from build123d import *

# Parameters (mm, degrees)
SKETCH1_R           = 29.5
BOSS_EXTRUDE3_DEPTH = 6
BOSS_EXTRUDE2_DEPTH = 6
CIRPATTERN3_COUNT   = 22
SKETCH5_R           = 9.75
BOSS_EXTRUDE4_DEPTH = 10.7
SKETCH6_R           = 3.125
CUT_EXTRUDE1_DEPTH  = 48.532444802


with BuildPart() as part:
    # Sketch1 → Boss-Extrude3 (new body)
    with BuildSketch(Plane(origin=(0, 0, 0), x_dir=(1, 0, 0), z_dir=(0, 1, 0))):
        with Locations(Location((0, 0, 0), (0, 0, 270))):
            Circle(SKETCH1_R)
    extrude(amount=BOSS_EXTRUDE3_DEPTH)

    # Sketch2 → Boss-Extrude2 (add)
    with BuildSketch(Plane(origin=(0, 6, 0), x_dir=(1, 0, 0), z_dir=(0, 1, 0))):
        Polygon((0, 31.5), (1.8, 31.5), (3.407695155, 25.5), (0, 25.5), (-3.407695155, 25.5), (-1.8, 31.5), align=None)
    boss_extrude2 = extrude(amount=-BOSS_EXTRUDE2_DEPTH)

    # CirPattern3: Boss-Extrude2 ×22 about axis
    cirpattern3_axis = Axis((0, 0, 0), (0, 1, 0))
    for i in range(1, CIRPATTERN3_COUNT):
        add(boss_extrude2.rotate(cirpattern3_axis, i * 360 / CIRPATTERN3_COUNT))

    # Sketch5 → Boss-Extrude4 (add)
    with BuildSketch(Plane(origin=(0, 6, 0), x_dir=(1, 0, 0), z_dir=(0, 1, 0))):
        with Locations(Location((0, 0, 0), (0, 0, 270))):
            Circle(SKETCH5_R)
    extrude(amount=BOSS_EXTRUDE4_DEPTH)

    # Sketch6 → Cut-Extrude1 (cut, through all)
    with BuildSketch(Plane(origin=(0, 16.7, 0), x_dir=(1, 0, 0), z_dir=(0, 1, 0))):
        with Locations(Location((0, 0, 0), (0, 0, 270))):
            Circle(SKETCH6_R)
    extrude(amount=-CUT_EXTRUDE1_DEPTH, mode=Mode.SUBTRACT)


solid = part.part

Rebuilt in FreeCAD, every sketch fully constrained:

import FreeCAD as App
import Part
import Sketcher
from FreeCAD import Vector
Q = App.Units.Quantity


def add_polygon(sketch, points):
    """Adds a closed chain of lines whose ends are joined by coincident constraints."""
    first, n = sketch.GeometryCount, len(points)
    for a, b in zip(points, points[1:] + points[:1]):
        sketch.addGeometry(Part.LineSegment(App.Vector(*a, 0), App.Vector(*b, 0)), False)
    for i in range(n):
        sketch.addConstraint(Sketcher.Constraint("Coincident", first + i, 2, first + (i + 1) % n, 1))

doc = App.newDocument("Part")
body = doc.addObject("PartDesign::Body", "Body")

# Sketch on XZ plane
sketch1 = doc.addObject("Sketcher::SketchObject", "Sketch")
body.addObject(sketch1)
sketch1.AttachmentSupport = (doc.XZ_Plane, [""])
sketch1.MapMode = "FlatFace"
sketch1.addGeometry(Part.Circle(Vector(0, 0, 0), Vector(0, 0, 1), 30), False)
sketch1.addConstraint([
    Sketcher.Constraint("Coincident", 0, 3, -1, 1),
    Sketcher.Constraint("Diameter", 0, 59.0),
])
pad1 = doc.addObject("PartDesign::Pad", "Pad")
body.addObject(pad1)
pad1.Profile = sketch1
pad1.Length = 6
pad1.Reversed = True

# Sketch on XZ plane
sketch2 = doc.addObject("Sketcher::SketchObject", "Sketch001")
body.addObject(sketch2)
sketch2.AttachmentSupport = (doc.XZ_Plane, [""])
sketch2.MapMode = "FlatFace"
sketch2.AttachmentOffset = App.Placement(Vector(0, 0, -6), App.Rotation())
add_polygon(sketch2, [(1.8, -31.5), (-1.8, -31.5), (-3.4, -25.5), (3.4, -25.5)])  # lines 0-3
sketch2.addConstraint([
    Sketcher.Constraint("Horizontal", 0),
    Sketcher.Constraint("Horizontal", 2),
    Sketcher.Constraint("Equal", 1, 3),
    Sketcher.Constraint("Angle", 1, Q("105 deg")),
    Sketcher.Constraint("DistanceX", 0, 2, 0, 1, 3.6),
    Sketcher.Constraint("DistanceY", 0, 2, 1, 2, 6.0),
    Sketcher.Constraint("DistanceX", 0, 2, -1, 1, 1.8),
    Sketcher.Constraint("DistanceY", 0, 2, -1, 1, 31.5),
])
pad2 = doc.addObject("PartDesign::Pad", "Pad001")
body.addObject(pad2)
pad2.Profile = sketch2
pad2.Length = 6
doc.recompute()

polarpattern = doc.addObject("PartDesign::PolarPattern", "PolarPattern")
body.addObject(polarpattern)
polarpattern.Originals = [pad2]
polarpattern.Axis = (doc.Y_Axis, [""])
polarpattern.Angle = 360
polarpattern.Occurrences = 22
body.Tip = polarpattern

# Sketch on XZ plane
sketch3 = doc.addObject("Sketcher::SketchObject", "Sketch002")
body.addObject(sketch3)
sketch3.AttachmentSupport = (doc.XZ_Plane, [""])
sketch3.MapMode = "FlatFace"
sketch3.AttachmentOffset = App.Placement(Vector(0, 0, -6), App.Rotation())
sketch3.addGeometry(Part.Circle(Vector(0, 0, 0), Vector(0, 0, 1), 10), False)
sketch3.addConstraint([
    Sketcher.Constraint("Coincident", 0, 3, -1, 1),
    Sketcher.Constraint("Diameter", 0, 19.5),
])
pad3 = doc.addObject("PartDesign::Pad", "Pad002")
body.addObject(pad3)
pad3.Profile = sketch3
pad3.Length = 10.7
pad3.Reversed = True

# Sketch on XZ plane
sketch4 = doc.addObject("Sketcher::SketchObject", "Sketch003")
body.addObject(sketch4)
sketch4.AttachmentSupport = (doc.XZ_Plane, [""])
sketch4.MapMode = "FlatFace"
sketch4.AttachmentOffset = App.Placement(Vector(0, 0, -16.7), App.Rotation())
sketch4.addGeometry(Part.Circle(Vector(0, 0, 0), Vector(0, 0, 1), 3.1), False)
sketch4.addConstraint([
    Sketcher.Constraint("Coincident", 0, 3, -1, 1),
    Sketcher.Constraint("Diameter", 0, 6.25),
])
pocket1 = doc.addObject("PartDesign::Pocket", "Pocket")
body.addObject(pocket1)
pocket1.Profile = sketch4
pocket1.Type = "ThroughAll"
pocket1.Reversed = True

doc.recompute()
